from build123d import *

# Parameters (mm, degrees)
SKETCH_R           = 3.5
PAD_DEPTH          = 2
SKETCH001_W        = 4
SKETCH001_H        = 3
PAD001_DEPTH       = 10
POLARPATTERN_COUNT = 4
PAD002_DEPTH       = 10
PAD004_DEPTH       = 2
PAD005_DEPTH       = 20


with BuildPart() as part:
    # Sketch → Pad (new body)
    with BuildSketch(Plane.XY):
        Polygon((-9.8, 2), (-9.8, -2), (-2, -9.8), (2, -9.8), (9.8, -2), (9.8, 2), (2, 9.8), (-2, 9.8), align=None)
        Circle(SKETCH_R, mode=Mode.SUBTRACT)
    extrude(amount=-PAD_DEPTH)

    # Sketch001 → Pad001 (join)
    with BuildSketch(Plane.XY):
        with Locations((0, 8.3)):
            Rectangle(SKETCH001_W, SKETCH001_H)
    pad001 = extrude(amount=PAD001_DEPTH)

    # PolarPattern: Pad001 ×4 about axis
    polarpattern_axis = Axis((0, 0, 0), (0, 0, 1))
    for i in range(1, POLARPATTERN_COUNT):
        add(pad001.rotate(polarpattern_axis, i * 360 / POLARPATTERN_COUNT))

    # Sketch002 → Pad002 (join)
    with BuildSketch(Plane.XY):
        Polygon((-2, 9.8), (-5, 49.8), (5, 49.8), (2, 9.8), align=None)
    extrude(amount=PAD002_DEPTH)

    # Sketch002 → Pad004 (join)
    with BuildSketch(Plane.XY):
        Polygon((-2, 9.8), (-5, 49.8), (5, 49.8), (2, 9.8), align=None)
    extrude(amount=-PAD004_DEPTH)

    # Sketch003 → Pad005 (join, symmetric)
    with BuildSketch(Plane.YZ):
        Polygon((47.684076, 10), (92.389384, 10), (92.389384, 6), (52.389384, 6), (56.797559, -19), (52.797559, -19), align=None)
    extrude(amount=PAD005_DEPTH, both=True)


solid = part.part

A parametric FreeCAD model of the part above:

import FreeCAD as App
import Part
import Sketcher
Q = App.Units.Quantity


def add_polygon(sketch, points):
    """Adds a closed chain of lines whose ends are joined by coincident constraints."""
    first, n = sketch.GeometryCount, len(points)
    for a, b in zip(points, points[1:] + points[:1]):
        sketch.addGeometry(Part.LineSegment(App.Vector(*a, 0), App.Vector(*b, 0)), False)
    for i in range(n):
        sketch.addConstraint(Sketcher.Constraint("Coincident", first + i, 2, first + (i + 1) % n, 1))

doc = App.newDocument("Part")
body = doc.addObject("PartDesign::Body", "Body")

# Sketch on XY plane
sketch1 = doc.addObject("Sketcher::SketchObject", "Sketch")
body.addObject(sketch1)
sketch1.AttachmentSupport = (doc.XY_Plane, [""])
sketch1.MapMode = "FlatFace"
add_polygon(sketch1, [(-9.8, 2), (-9.8, -2), (-2, -9.8), (2, -9.8), (9.8, -2), (9.8, 2), (2, 9.8), (-2, 9.8)])  # lines 0-7
sketch1.addGeometry(Part.Circle(App.Vector(0, 0, 0), App.Vector(0, 0, 1), 3.5), False)  # 8
sketch1.addConstraint(Sketcher.Constraint("Vertical", 0))
sketch1.addConstraint(Sketcher.Constraint("Horizontal", 2))
sketch1.addConstraint(Sketcher.Constraint("Vertical", 4))
sketch1.addConstraint(Sketcher.Constraint("Horizontal", 6))
sketch1.addConstraint(Sketcher.Constraint("Coincident", 8, 3, -1, 1))
sketch1.addConstraint(Sketcher.Constraint("Symmetric", 0, 2, 4, 2, -1, 1))
sketch1.addConstraint(Sketcher.Constraint("Symmetric", 1, 2, 5, 2, -1, 1))
sketch1.addConstraint(Sketcher.Constraint("Perpendicular", 1, 3))
sketch1.addConstraint(Sketcher.Constraint("Perpendicular", 5, 7))
sketch1.addConstraint(Sketcher.Constraint("Horizontal", 0, 2, 3, 2))
sketch1.addConstraint(Sketcher.Constraint("Horizontal", 4, 2, 7, 2))
sketch1.addConstraint(Sketcher.Constraint("Vertical", 2, 2, 5, 2))
sketch1.addConstraint(Sketcher.Constraint("Equal", 6, 0))
sketch1.addConstraint(Sketcher.Constraint("Diameter", 8, 7.0))
sketch1.addConstraint(Sketcher.Constraint("DistanceX", 2, 1, 2, 2, 4.0))
sketch1.addConstraint(Sketcher.Constraint("DistanceX", 0, 2, -1, 1, 9.8))
pad1 = doc.addObject("PartDesign::Pad", "Pad")
body.addObject(pad1)
pad1.Profile = sketch1
pad1.Length = 2
pad1.Reversed = True

# Sketch on XY plane
sketch2 = doc.addObject("Sketcher::SketchObject", "Sketch001")
body.addObject(sketch2)
sketch2.AttachmentSupport = (doc.XY_Plane, [""])
sketch2.MapMode = "FlatFace"
add_polygon(sketch2, [(-2, 9.8), (-2, 6.8), (2, 6.8), (2, 9.8)])  # lines 0-3
sketch2.addConstraint(Sketcher.Constraint("Vertical", 0))
sketch2.addConstraint(Sketcher.Constraint("Horizontal", 1))
sketch2.addConstraint(Sketcher.Constraint("Vertical", 2))
sketch2.addConstraint(Sketcher.Constraint("Horizontal", 3))
sketch2.addConstraint(Sketcher.Constraint("DistanceX", 1, 1, 1, 2, 4.0))
sketch2.addConstraint(Sketcher.Constraint("DistanceY", 0, 2, 0, 1, 3.0))
sketch2.addConstraint(Sketcher.Constraint("DistanceX", 0, 2, -1, 1, 2.0))
sketch2.addConstraint(Sketcher.Constraint("DistanceY", -1, 1, 0, 2, 6.8))
pad2 = doc.addObject("PartDesign::Pad", "Pad001")
body.addObject(pad2)
pad2.Profile = sketch2
pad2.Length = 10
doc.recompute()

polarpattern = doc.addObject("PartDesign::PolarPattern", "PolarPattern")
body.addObject(polarpattern)
polarpattern.Originals = [pad2]
polarpattern.Axis = (doc.Z_Axis, [""])
polarpattern.Angle = 360
polarpattern.Occurrences = 4
body.Tip = polarpattern

# Sketch on XY plane
sketch3 = doc.addObject("Sketcher::SketchObject", "Sketch002")
body.addObject(sketch3)
sketch3.AttachmentSupport = (doc.XY_Plane, [""])
sketch3.MapMode = "FlatFace"
add_polygon(sketch3, [(-5, 49.8), (-2, 9.8), (2, 9.8), (5, 49.8)])  # lines 0-3
sketch3.addConstraint(Sketcher.Constraint("Horizontal", 1))
sketch3.addConstraint(Sketcher.Constraint("Horizontal", 3))
sketch3.addConstraint(Sketcher.Constraint("Equal", 0, 2))
sketch3.addConstraint(Sketcher.Constraint("DistanceX", 1, 1, 1, 2, 4.0))
sketch3.addConstraint(Sketcher.Constraint("DistanceX", 3, 2, 3, 1, 10.0))
sketch3.addConstraint(Sketcher.Constraint("DistanceX", 0, 2, -1, 1, 2.0))
sketch3.addConstraint(Sketcher.Constraint("DistanceY", 1, 2, 2, 2, 40.0))
sketch3.addConstraint(Sketcher.Constraint("DistanceY", -1, 1, 0, 2, 9.8))
pad3 = doc.addObject("PartDesign::Pad", "Pad002")
body.addObject(pad3)
pad3.Profile = sketch3
pad3.Length = 10

# Sketch on XY plane
sketch4 = doc.addObject("Sketcher::SketchObject", "Sketch003")
body.addObject(sketch4)
sketch4.AttachmentSupport = (doc.XY_Plane, [""])
sketch4.MapMode = "FlatFace"
add_polygon(sketch4, [(-5, 49.8), (-2, 9.8), (2, 9.8), (5, 49.8)])  # lines 0-3
sketch4.addConstraint(Sketcher.Constraint("Horizontal", 1))
sketch4.addConstraint(Sketcher.Constraint("Horizontal", 3))
sketch4.addConstraint(Sketcher.Constraint("Equal", 0, 2))
sketch4.addConstraint(Sketcher.Constraint("DistanceX", 1, 1, 1, 2, 4.0))
sketch4.addConstraint(Sketcher.Constraint("DistanceX", 3, 2, 3, 1, 10.0))
sketch4.addConstraint(Sketcher.Constraint("DistanceX", 0, 2, -1, 1, 2.0))
sketch4.addConstraint(Sketcher.Constraint("DistanceY", 1, 2, 2, 2, 40.0))
sketch4.addConstraint(Sketcher.Constraint("DistanceY", -1, 1, 0, 2, 9.8))
pad4 = doc.addObject("PartDesign::Pad", "Pad003")
body.addObject(pad4)
pad4.Profile = sketch4
pad4.Length = 2
pad4.Reversed = True

# Sketch on YZ plane
sketch5 = doc.addObject("Sketcher::SketchObject", "Sketch004")
body.addObject(sketch5)
sketch5.AttachmentSupport = (doc.YZ_Plane, [""])
sketch5.MapMode = "FlatFace"
add_polygon(sketch5, [(92.389384, 10), (47.684076, 10), (52.797559, -19), (56.797559, -19), (52.389384, 6), (92.389384, 6)])  # lines 0-5
sketch5.addConstraint(Sketcher.Constraint("Horizontal", 0))
sketch5.addConstraint(Sketcher.Constraint("Horizontal", 2))
sketch5.addConstraint(Sketcher.Constraint("Horizontal", 4))
sketch5.addConstraint(Sketcher.Constraint("Vertical", 5))
sketch5.addConstraint(Sketcher.Constraint("Parallel", 1, 3))
sketch5.addConstraint(Sketcher.Constraint("Equal", 2, 5))
sketch5.addConstraint(Sketcher.Constraint("DistanceX", 2, 1, 2, 2, 4.0))
sketch5.addConstraint(Sketcher.Constraint("DistanceX", 4, 1, 4, 2, 40.0))
sketch5.addConstraint(Sketcher.Constraint("Angle", 1, Q("-79.999999 deg")))
sketch5.addConstraint(Sketcher.Constraint("DistanceY", -1, 1, 0, 2, 10.0))
sketch5.addConstraint(Sketcher.Constraint("DistanceY", 1, 2, -1, 1, 19.0))
sketch5.addConstraint(Sketcher.Constraint("DistanceX", -1, 1, 1, 2, 52.797559))
pad5 = doc.addObject("PartDesign::Pad", "Pad004")
body.addObject(pad5)
pad5.Profile = sketch5
pad5.Length = 40
pad5.Midplane = True

doc.recompute()
